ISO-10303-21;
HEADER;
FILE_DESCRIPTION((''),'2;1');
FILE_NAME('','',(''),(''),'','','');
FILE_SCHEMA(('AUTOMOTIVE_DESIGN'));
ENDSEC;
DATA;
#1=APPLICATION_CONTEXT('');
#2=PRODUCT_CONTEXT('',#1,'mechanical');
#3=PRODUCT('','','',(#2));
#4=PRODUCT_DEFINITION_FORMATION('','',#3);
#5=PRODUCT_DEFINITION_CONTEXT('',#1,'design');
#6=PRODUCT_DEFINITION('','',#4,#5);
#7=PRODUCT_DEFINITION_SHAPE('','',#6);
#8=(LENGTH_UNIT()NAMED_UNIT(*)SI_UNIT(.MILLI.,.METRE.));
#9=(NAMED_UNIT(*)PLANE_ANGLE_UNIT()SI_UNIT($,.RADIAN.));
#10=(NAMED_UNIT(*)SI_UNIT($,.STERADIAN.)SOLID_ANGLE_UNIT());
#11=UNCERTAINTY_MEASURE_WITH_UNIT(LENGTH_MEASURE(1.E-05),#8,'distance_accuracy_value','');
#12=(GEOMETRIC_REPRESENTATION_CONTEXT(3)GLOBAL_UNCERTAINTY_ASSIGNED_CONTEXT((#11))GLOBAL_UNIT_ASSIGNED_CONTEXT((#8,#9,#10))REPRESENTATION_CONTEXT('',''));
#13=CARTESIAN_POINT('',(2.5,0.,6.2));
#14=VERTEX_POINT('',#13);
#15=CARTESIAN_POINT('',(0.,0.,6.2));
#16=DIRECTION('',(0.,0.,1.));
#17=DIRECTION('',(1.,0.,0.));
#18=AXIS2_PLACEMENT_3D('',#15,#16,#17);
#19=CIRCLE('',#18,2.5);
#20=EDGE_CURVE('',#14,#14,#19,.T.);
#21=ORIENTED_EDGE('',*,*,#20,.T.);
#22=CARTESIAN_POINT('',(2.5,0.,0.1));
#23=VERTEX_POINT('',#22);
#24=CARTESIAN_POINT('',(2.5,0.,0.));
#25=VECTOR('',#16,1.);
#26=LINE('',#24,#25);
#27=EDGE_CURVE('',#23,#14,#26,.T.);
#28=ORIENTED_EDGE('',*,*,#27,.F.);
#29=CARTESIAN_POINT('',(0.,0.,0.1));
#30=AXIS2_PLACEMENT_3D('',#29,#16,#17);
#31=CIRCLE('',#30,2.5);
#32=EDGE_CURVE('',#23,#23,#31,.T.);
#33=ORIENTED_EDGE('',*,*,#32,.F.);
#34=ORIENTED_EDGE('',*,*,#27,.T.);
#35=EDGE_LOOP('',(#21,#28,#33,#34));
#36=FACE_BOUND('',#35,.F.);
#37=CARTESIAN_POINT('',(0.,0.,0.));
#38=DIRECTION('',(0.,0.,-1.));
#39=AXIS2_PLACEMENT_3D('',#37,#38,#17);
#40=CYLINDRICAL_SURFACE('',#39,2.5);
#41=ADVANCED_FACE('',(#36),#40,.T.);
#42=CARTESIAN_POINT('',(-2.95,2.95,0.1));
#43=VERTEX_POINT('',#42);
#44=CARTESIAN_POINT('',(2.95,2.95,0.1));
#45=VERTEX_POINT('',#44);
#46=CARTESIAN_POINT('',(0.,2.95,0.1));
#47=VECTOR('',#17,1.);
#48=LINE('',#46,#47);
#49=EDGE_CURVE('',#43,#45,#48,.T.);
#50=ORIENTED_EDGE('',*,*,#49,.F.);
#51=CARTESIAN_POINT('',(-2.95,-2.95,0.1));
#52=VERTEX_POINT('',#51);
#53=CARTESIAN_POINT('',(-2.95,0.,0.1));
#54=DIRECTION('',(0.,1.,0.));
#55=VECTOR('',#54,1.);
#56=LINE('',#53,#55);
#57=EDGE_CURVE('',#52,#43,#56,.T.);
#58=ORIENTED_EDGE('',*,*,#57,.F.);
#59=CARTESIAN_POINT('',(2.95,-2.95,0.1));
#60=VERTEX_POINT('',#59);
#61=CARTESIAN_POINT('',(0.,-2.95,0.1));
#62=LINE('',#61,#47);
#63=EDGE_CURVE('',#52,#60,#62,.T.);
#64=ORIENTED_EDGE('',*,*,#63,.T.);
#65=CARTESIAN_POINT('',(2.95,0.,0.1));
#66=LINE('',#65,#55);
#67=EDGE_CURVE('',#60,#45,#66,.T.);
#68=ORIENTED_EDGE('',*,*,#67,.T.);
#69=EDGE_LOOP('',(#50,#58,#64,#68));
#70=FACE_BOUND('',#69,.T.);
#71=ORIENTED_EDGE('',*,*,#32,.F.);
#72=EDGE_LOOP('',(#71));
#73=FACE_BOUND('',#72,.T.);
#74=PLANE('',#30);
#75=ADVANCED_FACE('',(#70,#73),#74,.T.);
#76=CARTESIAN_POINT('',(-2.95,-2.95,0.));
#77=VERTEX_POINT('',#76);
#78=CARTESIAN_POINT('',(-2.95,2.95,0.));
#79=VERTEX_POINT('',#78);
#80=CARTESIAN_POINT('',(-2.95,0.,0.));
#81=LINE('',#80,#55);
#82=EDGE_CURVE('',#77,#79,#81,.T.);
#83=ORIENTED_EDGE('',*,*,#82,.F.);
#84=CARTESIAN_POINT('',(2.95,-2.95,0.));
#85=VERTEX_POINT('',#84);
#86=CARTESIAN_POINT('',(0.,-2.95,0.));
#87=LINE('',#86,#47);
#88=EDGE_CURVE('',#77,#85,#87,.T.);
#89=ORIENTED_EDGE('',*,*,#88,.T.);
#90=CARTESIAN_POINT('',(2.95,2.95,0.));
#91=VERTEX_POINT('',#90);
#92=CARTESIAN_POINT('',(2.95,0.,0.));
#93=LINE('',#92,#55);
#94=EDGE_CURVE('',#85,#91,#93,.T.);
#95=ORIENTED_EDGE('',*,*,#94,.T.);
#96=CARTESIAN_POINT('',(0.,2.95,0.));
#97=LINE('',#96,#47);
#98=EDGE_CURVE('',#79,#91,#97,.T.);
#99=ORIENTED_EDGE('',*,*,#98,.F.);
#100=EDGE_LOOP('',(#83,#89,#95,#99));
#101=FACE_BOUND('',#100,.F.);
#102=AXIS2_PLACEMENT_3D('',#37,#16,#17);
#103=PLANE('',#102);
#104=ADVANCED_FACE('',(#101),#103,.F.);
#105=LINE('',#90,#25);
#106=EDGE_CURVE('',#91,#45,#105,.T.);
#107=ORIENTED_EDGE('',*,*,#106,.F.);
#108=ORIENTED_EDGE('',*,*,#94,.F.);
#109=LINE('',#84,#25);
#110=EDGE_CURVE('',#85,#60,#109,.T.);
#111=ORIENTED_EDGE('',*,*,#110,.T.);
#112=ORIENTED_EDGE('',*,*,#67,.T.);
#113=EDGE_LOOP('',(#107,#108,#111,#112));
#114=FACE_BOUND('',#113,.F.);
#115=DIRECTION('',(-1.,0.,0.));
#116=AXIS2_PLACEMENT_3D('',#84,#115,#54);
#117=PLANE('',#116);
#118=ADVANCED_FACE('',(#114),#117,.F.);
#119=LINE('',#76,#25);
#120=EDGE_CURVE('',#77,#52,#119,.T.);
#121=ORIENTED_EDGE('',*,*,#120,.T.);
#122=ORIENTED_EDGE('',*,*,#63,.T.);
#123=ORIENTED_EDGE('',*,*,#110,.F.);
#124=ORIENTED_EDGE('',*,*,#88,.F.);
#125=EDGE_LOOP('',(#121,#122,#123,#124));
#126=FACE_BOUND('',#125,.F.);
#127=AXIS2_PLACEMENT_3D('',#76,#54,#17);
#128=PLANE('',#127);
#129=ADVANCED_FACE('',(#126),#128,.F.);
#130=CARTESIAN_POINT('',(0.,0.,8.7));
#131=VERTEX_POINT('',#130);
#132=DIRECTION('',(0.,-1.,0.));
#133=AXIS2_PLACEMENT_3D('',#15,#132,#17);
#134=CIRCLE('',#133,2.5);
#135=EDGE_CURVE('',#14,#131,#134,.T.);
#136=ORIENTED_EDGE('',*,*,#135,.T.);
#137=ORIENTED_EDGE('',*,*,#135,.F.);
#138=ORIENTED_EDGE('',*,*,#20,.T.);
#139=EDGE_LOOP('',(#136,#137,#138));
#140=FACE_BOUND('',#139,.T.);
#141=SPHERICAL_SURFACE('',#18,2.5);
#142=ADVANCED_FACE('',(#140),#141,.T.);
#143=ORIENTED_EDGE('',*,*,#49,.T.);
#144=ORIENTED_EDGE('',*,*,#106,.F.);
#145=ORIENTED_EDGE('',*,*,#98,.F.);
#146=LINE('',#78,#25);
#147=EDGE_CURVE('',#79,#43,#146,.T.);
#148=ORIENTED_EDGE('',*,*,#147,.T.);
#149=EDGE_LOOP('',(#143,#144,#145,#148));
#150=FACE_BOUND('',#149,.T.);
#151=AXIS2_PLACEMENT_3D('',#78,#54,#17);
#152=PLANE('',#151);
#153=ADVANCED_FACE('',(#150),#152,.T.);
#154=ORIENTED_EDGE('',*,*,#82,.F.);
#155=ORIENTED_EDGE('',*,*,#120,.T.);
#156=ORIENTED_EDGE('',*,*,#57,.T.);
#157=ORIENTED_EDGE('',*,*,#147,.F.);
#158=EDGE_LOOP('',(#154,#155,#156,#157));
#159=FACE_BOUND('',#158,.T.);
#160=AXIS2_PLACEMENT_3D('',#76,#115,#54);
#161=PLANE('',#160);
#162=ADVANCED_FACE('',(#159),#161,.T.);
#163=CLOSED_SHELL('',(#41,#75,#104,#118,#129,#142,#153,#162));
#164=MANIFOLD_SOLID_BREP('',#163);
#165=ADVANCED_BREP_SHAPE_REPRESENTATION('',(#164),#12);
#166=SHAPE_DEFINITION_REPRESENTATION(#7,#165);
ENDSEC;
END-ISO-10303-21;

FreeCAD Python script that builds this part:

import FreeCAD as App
import Part
import Sketcher
Q = App.Units.Quantity


def edges_at(feature, points):
    """Names of the edges that pass closest to the given points."""
    edges = feature.Shape.Edges
    near = lambda p: min(range(len(edges)), key=lambda i: edges[i].distToShape(Part.Vertex(*p))[0])
    return sorted({f"Edge{near(p) + 1}" for p in points})


def add_polygon(sketch, points):
    """Adds a closed chain of lines whose ends are joined by coincident constraints."""
    first, n = sketch.GeometryCount, len(points)
    for a, b in zip(points, points[1:] + points[:1]):
        sketch.addGeometry(Part.LineSegment(App.Vector(*a, 0), App.Vector(*b, 0)), False)
    for i in range(n):
        sketch.addConstraint(Sketcher.Constraint("Coincident", first + i, 2, first + (i + 1) % n, 1))

doc = App.newDocument("Part")
body = doc.addObject("PartDesign::Body", "Body")

# Sketch on XY plane
sketch1 = doc.addObject("Sketcher::SketchObject", "Sketch")
body.addObject(sketch1)
sketch1.AttachmentSupport = (doc.XY_Plane, [""])
sketch1.MapMode = "FlatFace"
add_polygon(sketch1, [(-3, 3), (-3, -3), (3, -3), (3, 3)])  # lines 0-3
sketch1.addGeometry(Part.Circle(App.Vector(0, 0, 0), App.Vector(0, 0, 1), 2.5), False)  # 4
sketch1.addConstraint(Sketcher.Constraint("Vertical", 0))
sketch1.addConstraint(Sketcher.Constraint("Horizontal", 1))
sketch1.addConstraint(Sketcher.Constraint("Vertical", 2))
sketch1.addConstraint(Sketcher.Constraint("Horizontal", 3))
sketch1.addConstraint(Sketcher.Constraint("Coincident", 4, 3, -1, 1))
sketch1.addConstraint(Sketcher.Constraint("Symmetric", 0, 2, 2, 2, -1, 1))
sketch1.addConstraint(Sketcher.Constraint("Equal", 3, 0))
sketch1.addConstraint(Sketcher.Constraint("Diameter", 4, Q("5 mm")))
sketch1.addConstraint(Sketcher.Constraint("DistanceX", 1, 1, 1, 2, Q("5.9 mm")))
pad1 = doc.addObject("PartDesign::Pad", "Pad")
body.addObject(pad1)
pad1.Profile = sketch1
pad1.Length = 0.1

# Sketch on XY plane
sketch2 = doc.addObject("Sketcher::SketchObject", "Sketch001")
body.addObject(sketch2)
sketch2.AttachmentSupport = (doc.XY_Plane, [""])
sketch2.MapMode = "FlatFace"
sketch2.addGeometry(Part.Circle(App.Vector(0, 0, 0), App.Vector(0, 0, 1), 2.5), False)
sketch2.addConstraint(Sketcher.Constraint("Coincident", 0, 3, -1, 1))
sketch2.addConstraint(Sketcher.Constraint("Diameter", 0, Q("5 mm")))
pad2 = doc.addObject("PartDesign::Pad", "Pad001")
body.addObject(pad2)
pad2.Profile = sketch2
pad2.Length = 8.7
doc.recompute()

fillet = doc.addObject("PartDesign::Fillet", "Fillet")
body.addObject(fillet)
fillet.Base = (pad2, edges_at(pad2, [(-2.5, 0, 8.7)]))
fillet.Radius = 2.5

doc.recompute()
